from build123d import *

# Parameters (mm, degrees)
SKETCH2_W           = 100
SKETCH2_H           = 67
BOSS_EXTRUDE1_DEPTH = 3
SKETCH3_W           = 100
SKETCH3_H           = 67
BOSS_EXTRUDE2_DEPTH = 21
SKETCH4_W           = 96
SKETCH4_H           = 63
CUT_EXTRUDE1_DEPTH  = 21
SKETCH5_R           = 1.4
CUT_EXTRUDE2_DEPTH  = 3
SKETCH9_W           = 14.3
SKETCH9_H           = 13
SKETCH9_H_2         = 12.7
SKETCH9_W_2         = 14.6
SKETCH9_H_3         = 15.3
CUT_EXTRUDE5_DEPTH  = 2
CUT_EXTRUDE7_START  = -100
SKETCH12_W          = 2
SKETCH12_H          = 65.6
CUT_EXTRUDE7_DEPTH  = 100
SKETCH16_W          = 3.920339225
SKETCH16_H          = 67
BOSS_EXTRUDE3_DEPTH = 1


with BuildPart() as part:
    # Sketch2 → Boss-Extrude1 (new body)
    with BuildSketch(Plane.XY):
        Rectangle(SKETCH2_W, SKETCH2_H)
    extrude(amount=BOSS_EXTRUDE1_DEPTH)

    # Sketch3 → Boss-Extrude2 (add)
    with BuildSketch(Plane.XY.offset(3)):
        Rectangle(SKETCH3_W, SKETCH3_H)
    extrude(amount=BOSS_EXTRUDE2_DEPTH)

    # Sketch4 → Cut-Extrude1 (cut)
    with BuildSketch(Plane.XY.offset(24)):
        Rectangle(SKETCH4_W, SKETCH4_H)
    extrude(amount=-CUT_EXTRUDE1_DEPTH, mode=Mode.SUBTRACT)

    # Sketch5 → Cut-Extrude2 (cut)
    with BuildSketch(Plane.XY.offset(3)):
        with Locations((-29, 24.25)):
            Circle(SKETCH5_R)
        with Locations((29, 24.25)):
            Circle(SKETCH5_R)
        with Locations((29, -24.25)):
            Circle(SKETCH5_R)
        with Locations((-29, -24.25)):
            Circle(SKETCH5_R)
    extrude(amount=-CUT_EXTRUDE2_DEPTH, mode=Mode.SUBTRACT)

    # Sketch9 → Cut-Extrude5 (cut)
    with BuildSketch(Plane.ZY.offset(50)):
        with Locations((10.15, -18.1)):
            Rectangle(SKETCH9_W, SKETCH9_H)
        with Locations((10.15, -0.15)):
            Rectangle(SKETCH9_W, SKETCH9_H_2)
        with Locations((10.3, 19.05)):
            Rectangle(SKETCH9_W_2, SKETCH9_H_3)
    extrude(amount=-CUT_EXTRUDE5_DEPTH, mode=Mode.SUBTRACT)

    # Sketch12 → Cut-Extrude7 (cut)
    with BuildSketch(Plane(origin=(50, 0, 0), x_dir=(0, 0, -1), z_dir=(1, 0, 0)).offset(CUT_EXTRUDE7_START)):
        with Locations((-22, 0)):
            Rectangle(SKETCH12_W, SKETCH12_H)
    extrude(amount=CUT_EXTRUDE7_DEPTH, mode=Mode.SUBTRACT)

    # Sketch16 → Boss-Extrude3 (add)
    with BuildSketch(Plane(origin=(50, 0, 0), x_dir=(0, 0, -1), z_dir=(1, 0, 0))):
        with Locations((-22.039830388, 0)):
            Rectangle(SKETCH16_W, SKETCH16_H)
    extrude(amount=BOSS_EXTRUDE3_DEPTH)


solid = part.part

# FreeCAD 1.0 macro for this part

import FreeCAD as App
import Part
import Sketcher
from FreeCAD import Vector
Q = App.Units.Quantity

doc = App.newDocument("Part")
body = doc.addObject("PartDesign::Body", "Body")

# Sketch on XY plane
sketch1 = body.newObject("Sketcher::SketchObject", "Sketch")
sketch1.AttachmentSupport = (doc.getObject("XY_Plane"), [""])
sketch1.MapMode = "FlatFace"
sketch1.addGeometry([
    Part.LineSegment(Vector(-50, 34, 0), Vector(-50, -34, 0)),
    Part.LineSegment(Vector(-50, -34, 0), Vector(50, -34, 0)),
    Part.LineSegment(Vector(50, -34, 0), Vector(50, 34, 0)),
    Part.LineSegment(Vector(50, 34, 0), Vector(-50, 34, 0)),
], False)
sketch1.addConstraint([
    Sketcher.Constraint("Coincident", 0, 2, 1, 1),
    Sketcher.Constraint("Coincident", 1, 2, 2, 1),
    Sketcher.Constraint("Coincident", 2, 2, 3, 1),
    Sketcher.Constraint("Coincident", 3, 2, 0, 1),
    Sketcher.Constraint("Vertical", 0),
    Sketcher.Constraint("Horizontal", 1),
    Sketcher.Constraint("Vertical", 2),
    Sketcher.Constraint("Horizontal", 3),
    Sketcher.Constraint("Symmetric", 0, 2, 2, 2, -1, 1),
    Sketcher.Constraint("DistanceX", 1, 1, 1, 2, Q("100 mm")),
    Sketcher.Constraint("DistanceY", 0, 2, 0, 1, Q("67 mm")),
])
pad1 = body.newObject("PartDesign::Pad", "Pad")
pad1.Profile = sketch1
pad1.Length = 3

# Sketch on XY plane
sketch2 = body.newObject("Sketcher::SketchObject", "Sketch001")
sketch2.AttachmentSupport = (doc.getObject("XY_Plane"), [""])
sketch2.MapMode = "FlatFace"
sketch2.AttachmentOffset = App.Placement(Vector(0, 0, 3), App.Rotation())
sketch2.addGeometry([
    Part.LineSegment(Vector(-50, 34, 0), Vector(-50, -34, 0)),
    Part.LineSegment(Vector(-50, -34, 0), Vector(50, -34, 0)),
    Part.LineSegment(Vector(50, -34, 0), Vector(50, 34, 0)),
    Part.LineSegment(Vector(50, 34, 0), Vector(-50, 34, 0)),
], False)
sketch2.addConstraint([
    Sketcher.Constraint("Coincident", 0, 2, 1, 1),
    Sketcher.Constraint("Coincident", 1, 2, 2, 1),
    Sketcher.Constraint("Coincident", 2, 2, 3, 1),
    Sketcher.Constraint("Coincident", 3, 2, 0, 1),
    Sketcher.Constraint("Vertical", 0),
    Sketcher.Constraint("Horizontal", 1),
    Sketcher.Constraint("Vertical", 2),
    Sketcher.Constraint("Horizontal", 3),
    Sketcher.Constraint("Symmetric", 0, 2, 2, 2, -1, 1),
    Sketcher.Constraint("DistanceX", 1, 1, 1, 2, Q("100 mm")),
    Sketcher.Constraint("DistanceY", 0, 2, 0, 1, Q("67 mm")),
])
pad2 = body.newObject("PartDesign::Pad", "Pad001")
pad2.Profile = sketch2
pad2.Length = 21

# Sketch on XY plane
sketch3 = body.newObject("Sketcher::SketchObject", "Sketch002")
sketch3.AttachmentSupport = (doc.getObject("XY_Plane"), [""])
sketch3.MapMode = "FlatFace"
sketch3.AttachmentOffset = App.Placement(Vector(0, 0, 24), App.Rotation())
sketch3.addGeometry([
    Part.LineSegment(Vector(-48, 32, 0), Vector(-48, -32, 0)),
    Part.LineSegment(Vector(-48, -32, 0), Vector(48, -32, 0)),
    Part.LineSegment(Vector(48, -32, 0), Vector(48, 32, 0)),
    Part.LineSegment(Vector(48, 32, 0), Vector(-48, 32, 0)),
], False)
sketch3.addConstraint([
    Sketcher.Constraint("Coincident", 0, 2, 1, 1),
    Sketcher.Constraint("Coincident", 1, 2, 2, 1),
    Sketcher.Constraint("Coincident", 2, 2, 3, 1),
    Sketcher.Constraint("Coincident", 3, 2, 0, 1),
    Sketcher.Constraint("Vertical", 0),
    Sketcher.Constraint("Horizontal", 1),
    Sketcher.Constraint("Vertical", 2),
    Sketcher.Constraint("Horizontal", 3),
    Sketcher.Constraint("Symmetric", 0, 2, 2, 2, -1, 1),
    Sketcher.Constraint("DistanceX", 1, 1, 1, 2, Q("96 mm")),
    Sketcher.Constraint("DistanceY", 0, 2, 0, 1, Q("63 mm")),
])
pocket1 = body.newObject("PartDesign::Pocket", "Pocket")
pocket1.Profile = sketch3
pocket1.Length = 21

# Sketch on XY plane
sketch4 = body.newObject("Sketcher::SketchObject", "Sketch003")
sketch4.AttachmentSupport = (doc.getObject("XY_Plane"), [""])
sketch4.MapMode = "FlatFace"
sketch4.AttachmentOffset = App.Placement(Vector(0, 0, 3), App.Rotation())
sketch4.addGeometry([
    Part.Circle(Vector(-29, 24.2, 0), Vector(0, 0, 1), 1.4),
    Part.Circle(Vector(29, 24.2, 0), Vector(0, 0, 1), 1.4),
    Part.Circle(Vector(29, -24.2, 0), Vector(0, 0, 1), 1.4),
    Part.Circle(Vector(-29, -24.2, 0), Vector(0, 0, 1), 1.4),
], False)
sketch4.addConstraint([
    Sketcher.Constraint("Equal", 0, 1),
    Sketcher.Constraint("Equal", 1, 2),
    Sketcher.Constraint("Equal", 2, 3),
    Sketcher.Constraint("Symmetric", 0, 3, 2, 3, -1, 1),
    Sketcher.Constraint("Symmetric", 1, 3, 3, 3, -1, 1),
    Sketcher.Constraint("Symmetric", 0, 3, 1, 3, -2),
    Sketcher.Constraint("Diameter", 0, Q("2.8 mm")),
    Sketcher.Constraint("DistanceX", 0, 3, -1, 1, Q("29 mm")),
    Sketcher.Constraint("DistanceY", 2, 3, 1, 3, Q("48.5 mm")),
])
pocket2 = body.newObject("PartDesign::Pocket", "Pocket001")
pocket2.Profile = sketch4
pocket2.Length = 3

# Sketch on YZ plane
sketch5 = body.newObject("Sketcher::SketchObject", "Sketch004")
sketch5.AttachmentSupport = (doc.getObject("YZ_Plane"), [""])
sketch5.MapMode = "FlatFace"
sketch5.AttachmentOffset = App.Placement(Vector(0, 0, -50), App.Rotation())
sketch5.addGeometry([
    Part.LineSegment(Vector(-12, 3, 0), Vector(-25, 3, 0)),  # 0
    Part.LineSegment(Vector(-25, 3, 0), Vector(-25, 17, 0)),  # 1
    Part.LineSegment(Vector(-25, 17, 0), Vector(-12, 17, 0)),  # 2
    Part.LineSegment(Vector(-12, 17, 0), Vector(-12, 3, 0)),  # 3
    Part.LineSegment(Vector(6, 3, 0), Vector(-6, 3, 0)),  # 4
    Part.LineSegment(Vector(-6, 3, 0), Vector(-6, 17, 0)),  # 5
    Part.LineSegment(Vector(-6, 17, 0), Vector(6, 17, 0)),  # 6
    Part.LineSegment(Vector(6, 17, 0), Vector(6, 3, 0)),  # 7
    Part.LineSegment(Vector(27, 3, 0), Vector(11, 3, 0)),  # 8
    Part.LineSegment(Vector(11, 3, 0), Vector(11, 18, 0)),  # 9
    Part.LineSegment(Vector(11, 18, 0), Vector(27, 18, 0)),  # 10
    Part.LineSegment(Vector(27, 18, 0), Vector(27, 3, 0)),  # 11
], False)
sketch5.addConstraint([
    Sketcher.Constraint("Coincident", 0, 2, 1, 1),
    Sketcher.Constraint("Coincident", 1, 2, 2, 1),
    Sketcher.Constraint("Coincident", 2, 2, 3, 1),
    Sketcher.Constraint("Coincident", 3, 2, 0, 1),
    Sketcher.Constraint("Coincident", 4, 2, 5, 1),
    Sketcher.Constraint("Coincident", 5, 2, 6, 1),
    Sketcher.Constraint("Coincident", 6, 2, 7, 1),
    Sketcher.Constraint("Coincident", 7, 2, 4, 1),
    Sketcher.Constraint("Coincident", 8, 2, 9, 1),
    Sketcher.Constraint("Coincident", 9, 2, 10, 1),
    Sketcher.Constraint("Coincident", 10, 2, 11, 1),
    Sketcher.Constraint("Coincident", 11, 2, 8, 1),
    Sketcher.Constraint("Horizontal", 0),
    Sketcher.Constraint("Vertical", 1),
    Sketcher.Constraint("Horizontal", 2),
    Sketcher.Constraint("Vertical", 3),
    Sketcher.Constraint("Horizontal", 4),
    Sketcher.Constraint("Vertical", 5),
    Sketcher.Constraint("Horizontal", 6),
    Sketcher.Constraint("Vertical", 7),
    Sketcher.Constraint("Horizontal", 8),
    Sketcher.Constraint("Vertical", 9),
    Sketcher.Constraint("Horizontal", 10),
    Sketcher.Constraint("Vertical", 11),
    Sketcher.Constraint("Horizontal", 3, 2, 4, 2),
    Sketcher.Constraint("Horizontal", 2, 2, 5, 2),
    Sketcher.Constraint("Horizontal", 7, 2, 8, 2),
    Sketcher.Constraint("DistanceX", 0, 2, 0, 1, Q("13 mm")),
    Sketcher.Constraint("DistanceX", 4, 2, 4, 1, Q("12.7 mm")),
    Sketcher.Constraint("DistanceX", 8, 2, 8, 1, Q("15.3 mm")),
    Sketcher.Constraint("DistanceY", 1, 1, 1, 2, Q("14.3 mm")),
    Sketcher.Constraint("DistanceY", 9, 1, 9, 2, Q("14.6 mm")),
    Sketcher.Constraint("DistanceY", -1, 1, 0, 2, Q("3 mm")),
    Sketcher.Constraint("DistanceX", 3, 2, 8, 2, Q("23 mm")),
    Sketcher.Constraint("DistanceX", 0, 2, -1, 1, Q("24.6 mm")),
    Sketcher.Constraint("DistanceX", 4, 2, -1, 1, Q("6.5 mm")),
])
pocket3 = body.newObject("PartDesign::Pocket", "Pocket002")
pocket3.Profile = sketch5
pocket3.Length = 2
pocket3.Reversed = True

# Sketch on YZ plane
sketch6 = body.newObject("Sketcher::SketchObject", "Sketch005")
sketch6.AttachmentSupport = (doc.getObject("YZ_Plane"), [""])
sketch6.MapMode = "FlatFace"
sketch6.AttachmentOffset = App.Placement(Vector(0, 0, -50), App.Rotation())
sketch6.addGeometry([
    Part.LineSegment(Vector(32.8, 23, 0), Vector(-32.8, 23, 0)),
    Part.LineSegment(Vector(-32.8, 23, 0), Vector(-32.8, 21, 0)),
    Part.LineSegment(Vector(-32.8, 21, 0), Vector(32.8, 21, 0)),
    Part.LineSegment(Vector(32.8, 21, 0), Vector(32.8, 23, 0)),
], False)
sketch6.addConstraint([
    Sketcher.Constraint("Coincident", 0, 2, 1, 1),
    Sketcher.Constraint("Coincident", 1, 2, 2, 1),
    Sketcher.Constraint("Coincident", 2, 2, 3, 1),
    Sketcher.Constraint("Coincident", 3, 2, 0, 1),
    Sketcher.Constraint("Horizontal", 0),
    Sketcher.Constraint("Vertical", 1),
    Sketcher.Constraint("Horizontal", 2),
    Sketcher.Constraint("Vertical", 3),
    Sketcher.Constraint("DistanceY", 1, 2, 1, 1, Q("2 mm")),
    Sketcher.Constraint("DistanceX", 0, 2, 0, 1, Q("65.6 mm")),
    Sketcher.Constraint("DistanceY", -1, 1, 0, 2, Q("23 mm")),
    Sketcher.Constraint("DistanceX", 0, 2, -1, 1, Q("32.8 mm")),
])
pocket4 = body.newObject("PartDesign::Pocket", "Pocket003")
pocket4.Profile = sketch6
pocket4.Length = 100
pocket4.Reversed = True

# Sketch on YZ plane
sketch7 = body.newObject("Sketcher::SketchObject", "Sketch006")
sketch7.AttachmentSupport = (doc.getObject("YZ_Plane"), [""])
sketch7.MapMode = "FlatFace"
sketch7.AttachmentOffset = App.Placement(Vector(0, 0, 50), App.Rotation())
sketch7.addGeometry([
    Part.LineSegment(Vector(33.5, 24, 0), Vector(-33.5, 24, 0)),
    Part.LineSegment(Vector(-33.5, 24, 0), Vector(-33.5, 20.1, 0)),
    Part.LineSegment(Vector(-33.5, 20.1, 0), Vector(33.5, 20.1, 0)),
    Part.LineSegment(Vector(33.5, 20.1, 0), Vector(33.5, 24, 0)),
], False)
sketch7.addConstraint([
    Sketcher.Constraint("Coincident", 0, 2, 1, 1),
    Sketcher.Constraint("Coincident", 1, 2, 2, 1),
    Sketcher.Constraint("Coincident", 2, 2, 3, 1),
    Sketcher.Constraint("Coincident", 3, 2, 0, 1),
    Sketcher.Constraint("Horizontal", 0),
    Sketcher.Constraint("Vertical", 1),
    Sketcher.Constraint("Horizontal", 2),
    Sketcher.Constraint("Vertical", 3),
    Sketcher.Constraint("DistanceX", 0, 2, 0, 1, Q("67 mm")),
    Sketcher.Constraint("DistanceY", -1, 1, 0, 2, Q("24 mm")),
    Sketcher.Constraint("DistanceX", 0, 2, -1, 1, Q("33.5 mm")),
    Sketcher.Constraint("DistanceY", 1, 2, 1, 1, Q("3.920339 mm")),
])
pad3 = body.newObject("PartDesign::Pad", "Pad002")
pad3.Profile = sketch7
pad3.Length = 1

doc.recompute()
